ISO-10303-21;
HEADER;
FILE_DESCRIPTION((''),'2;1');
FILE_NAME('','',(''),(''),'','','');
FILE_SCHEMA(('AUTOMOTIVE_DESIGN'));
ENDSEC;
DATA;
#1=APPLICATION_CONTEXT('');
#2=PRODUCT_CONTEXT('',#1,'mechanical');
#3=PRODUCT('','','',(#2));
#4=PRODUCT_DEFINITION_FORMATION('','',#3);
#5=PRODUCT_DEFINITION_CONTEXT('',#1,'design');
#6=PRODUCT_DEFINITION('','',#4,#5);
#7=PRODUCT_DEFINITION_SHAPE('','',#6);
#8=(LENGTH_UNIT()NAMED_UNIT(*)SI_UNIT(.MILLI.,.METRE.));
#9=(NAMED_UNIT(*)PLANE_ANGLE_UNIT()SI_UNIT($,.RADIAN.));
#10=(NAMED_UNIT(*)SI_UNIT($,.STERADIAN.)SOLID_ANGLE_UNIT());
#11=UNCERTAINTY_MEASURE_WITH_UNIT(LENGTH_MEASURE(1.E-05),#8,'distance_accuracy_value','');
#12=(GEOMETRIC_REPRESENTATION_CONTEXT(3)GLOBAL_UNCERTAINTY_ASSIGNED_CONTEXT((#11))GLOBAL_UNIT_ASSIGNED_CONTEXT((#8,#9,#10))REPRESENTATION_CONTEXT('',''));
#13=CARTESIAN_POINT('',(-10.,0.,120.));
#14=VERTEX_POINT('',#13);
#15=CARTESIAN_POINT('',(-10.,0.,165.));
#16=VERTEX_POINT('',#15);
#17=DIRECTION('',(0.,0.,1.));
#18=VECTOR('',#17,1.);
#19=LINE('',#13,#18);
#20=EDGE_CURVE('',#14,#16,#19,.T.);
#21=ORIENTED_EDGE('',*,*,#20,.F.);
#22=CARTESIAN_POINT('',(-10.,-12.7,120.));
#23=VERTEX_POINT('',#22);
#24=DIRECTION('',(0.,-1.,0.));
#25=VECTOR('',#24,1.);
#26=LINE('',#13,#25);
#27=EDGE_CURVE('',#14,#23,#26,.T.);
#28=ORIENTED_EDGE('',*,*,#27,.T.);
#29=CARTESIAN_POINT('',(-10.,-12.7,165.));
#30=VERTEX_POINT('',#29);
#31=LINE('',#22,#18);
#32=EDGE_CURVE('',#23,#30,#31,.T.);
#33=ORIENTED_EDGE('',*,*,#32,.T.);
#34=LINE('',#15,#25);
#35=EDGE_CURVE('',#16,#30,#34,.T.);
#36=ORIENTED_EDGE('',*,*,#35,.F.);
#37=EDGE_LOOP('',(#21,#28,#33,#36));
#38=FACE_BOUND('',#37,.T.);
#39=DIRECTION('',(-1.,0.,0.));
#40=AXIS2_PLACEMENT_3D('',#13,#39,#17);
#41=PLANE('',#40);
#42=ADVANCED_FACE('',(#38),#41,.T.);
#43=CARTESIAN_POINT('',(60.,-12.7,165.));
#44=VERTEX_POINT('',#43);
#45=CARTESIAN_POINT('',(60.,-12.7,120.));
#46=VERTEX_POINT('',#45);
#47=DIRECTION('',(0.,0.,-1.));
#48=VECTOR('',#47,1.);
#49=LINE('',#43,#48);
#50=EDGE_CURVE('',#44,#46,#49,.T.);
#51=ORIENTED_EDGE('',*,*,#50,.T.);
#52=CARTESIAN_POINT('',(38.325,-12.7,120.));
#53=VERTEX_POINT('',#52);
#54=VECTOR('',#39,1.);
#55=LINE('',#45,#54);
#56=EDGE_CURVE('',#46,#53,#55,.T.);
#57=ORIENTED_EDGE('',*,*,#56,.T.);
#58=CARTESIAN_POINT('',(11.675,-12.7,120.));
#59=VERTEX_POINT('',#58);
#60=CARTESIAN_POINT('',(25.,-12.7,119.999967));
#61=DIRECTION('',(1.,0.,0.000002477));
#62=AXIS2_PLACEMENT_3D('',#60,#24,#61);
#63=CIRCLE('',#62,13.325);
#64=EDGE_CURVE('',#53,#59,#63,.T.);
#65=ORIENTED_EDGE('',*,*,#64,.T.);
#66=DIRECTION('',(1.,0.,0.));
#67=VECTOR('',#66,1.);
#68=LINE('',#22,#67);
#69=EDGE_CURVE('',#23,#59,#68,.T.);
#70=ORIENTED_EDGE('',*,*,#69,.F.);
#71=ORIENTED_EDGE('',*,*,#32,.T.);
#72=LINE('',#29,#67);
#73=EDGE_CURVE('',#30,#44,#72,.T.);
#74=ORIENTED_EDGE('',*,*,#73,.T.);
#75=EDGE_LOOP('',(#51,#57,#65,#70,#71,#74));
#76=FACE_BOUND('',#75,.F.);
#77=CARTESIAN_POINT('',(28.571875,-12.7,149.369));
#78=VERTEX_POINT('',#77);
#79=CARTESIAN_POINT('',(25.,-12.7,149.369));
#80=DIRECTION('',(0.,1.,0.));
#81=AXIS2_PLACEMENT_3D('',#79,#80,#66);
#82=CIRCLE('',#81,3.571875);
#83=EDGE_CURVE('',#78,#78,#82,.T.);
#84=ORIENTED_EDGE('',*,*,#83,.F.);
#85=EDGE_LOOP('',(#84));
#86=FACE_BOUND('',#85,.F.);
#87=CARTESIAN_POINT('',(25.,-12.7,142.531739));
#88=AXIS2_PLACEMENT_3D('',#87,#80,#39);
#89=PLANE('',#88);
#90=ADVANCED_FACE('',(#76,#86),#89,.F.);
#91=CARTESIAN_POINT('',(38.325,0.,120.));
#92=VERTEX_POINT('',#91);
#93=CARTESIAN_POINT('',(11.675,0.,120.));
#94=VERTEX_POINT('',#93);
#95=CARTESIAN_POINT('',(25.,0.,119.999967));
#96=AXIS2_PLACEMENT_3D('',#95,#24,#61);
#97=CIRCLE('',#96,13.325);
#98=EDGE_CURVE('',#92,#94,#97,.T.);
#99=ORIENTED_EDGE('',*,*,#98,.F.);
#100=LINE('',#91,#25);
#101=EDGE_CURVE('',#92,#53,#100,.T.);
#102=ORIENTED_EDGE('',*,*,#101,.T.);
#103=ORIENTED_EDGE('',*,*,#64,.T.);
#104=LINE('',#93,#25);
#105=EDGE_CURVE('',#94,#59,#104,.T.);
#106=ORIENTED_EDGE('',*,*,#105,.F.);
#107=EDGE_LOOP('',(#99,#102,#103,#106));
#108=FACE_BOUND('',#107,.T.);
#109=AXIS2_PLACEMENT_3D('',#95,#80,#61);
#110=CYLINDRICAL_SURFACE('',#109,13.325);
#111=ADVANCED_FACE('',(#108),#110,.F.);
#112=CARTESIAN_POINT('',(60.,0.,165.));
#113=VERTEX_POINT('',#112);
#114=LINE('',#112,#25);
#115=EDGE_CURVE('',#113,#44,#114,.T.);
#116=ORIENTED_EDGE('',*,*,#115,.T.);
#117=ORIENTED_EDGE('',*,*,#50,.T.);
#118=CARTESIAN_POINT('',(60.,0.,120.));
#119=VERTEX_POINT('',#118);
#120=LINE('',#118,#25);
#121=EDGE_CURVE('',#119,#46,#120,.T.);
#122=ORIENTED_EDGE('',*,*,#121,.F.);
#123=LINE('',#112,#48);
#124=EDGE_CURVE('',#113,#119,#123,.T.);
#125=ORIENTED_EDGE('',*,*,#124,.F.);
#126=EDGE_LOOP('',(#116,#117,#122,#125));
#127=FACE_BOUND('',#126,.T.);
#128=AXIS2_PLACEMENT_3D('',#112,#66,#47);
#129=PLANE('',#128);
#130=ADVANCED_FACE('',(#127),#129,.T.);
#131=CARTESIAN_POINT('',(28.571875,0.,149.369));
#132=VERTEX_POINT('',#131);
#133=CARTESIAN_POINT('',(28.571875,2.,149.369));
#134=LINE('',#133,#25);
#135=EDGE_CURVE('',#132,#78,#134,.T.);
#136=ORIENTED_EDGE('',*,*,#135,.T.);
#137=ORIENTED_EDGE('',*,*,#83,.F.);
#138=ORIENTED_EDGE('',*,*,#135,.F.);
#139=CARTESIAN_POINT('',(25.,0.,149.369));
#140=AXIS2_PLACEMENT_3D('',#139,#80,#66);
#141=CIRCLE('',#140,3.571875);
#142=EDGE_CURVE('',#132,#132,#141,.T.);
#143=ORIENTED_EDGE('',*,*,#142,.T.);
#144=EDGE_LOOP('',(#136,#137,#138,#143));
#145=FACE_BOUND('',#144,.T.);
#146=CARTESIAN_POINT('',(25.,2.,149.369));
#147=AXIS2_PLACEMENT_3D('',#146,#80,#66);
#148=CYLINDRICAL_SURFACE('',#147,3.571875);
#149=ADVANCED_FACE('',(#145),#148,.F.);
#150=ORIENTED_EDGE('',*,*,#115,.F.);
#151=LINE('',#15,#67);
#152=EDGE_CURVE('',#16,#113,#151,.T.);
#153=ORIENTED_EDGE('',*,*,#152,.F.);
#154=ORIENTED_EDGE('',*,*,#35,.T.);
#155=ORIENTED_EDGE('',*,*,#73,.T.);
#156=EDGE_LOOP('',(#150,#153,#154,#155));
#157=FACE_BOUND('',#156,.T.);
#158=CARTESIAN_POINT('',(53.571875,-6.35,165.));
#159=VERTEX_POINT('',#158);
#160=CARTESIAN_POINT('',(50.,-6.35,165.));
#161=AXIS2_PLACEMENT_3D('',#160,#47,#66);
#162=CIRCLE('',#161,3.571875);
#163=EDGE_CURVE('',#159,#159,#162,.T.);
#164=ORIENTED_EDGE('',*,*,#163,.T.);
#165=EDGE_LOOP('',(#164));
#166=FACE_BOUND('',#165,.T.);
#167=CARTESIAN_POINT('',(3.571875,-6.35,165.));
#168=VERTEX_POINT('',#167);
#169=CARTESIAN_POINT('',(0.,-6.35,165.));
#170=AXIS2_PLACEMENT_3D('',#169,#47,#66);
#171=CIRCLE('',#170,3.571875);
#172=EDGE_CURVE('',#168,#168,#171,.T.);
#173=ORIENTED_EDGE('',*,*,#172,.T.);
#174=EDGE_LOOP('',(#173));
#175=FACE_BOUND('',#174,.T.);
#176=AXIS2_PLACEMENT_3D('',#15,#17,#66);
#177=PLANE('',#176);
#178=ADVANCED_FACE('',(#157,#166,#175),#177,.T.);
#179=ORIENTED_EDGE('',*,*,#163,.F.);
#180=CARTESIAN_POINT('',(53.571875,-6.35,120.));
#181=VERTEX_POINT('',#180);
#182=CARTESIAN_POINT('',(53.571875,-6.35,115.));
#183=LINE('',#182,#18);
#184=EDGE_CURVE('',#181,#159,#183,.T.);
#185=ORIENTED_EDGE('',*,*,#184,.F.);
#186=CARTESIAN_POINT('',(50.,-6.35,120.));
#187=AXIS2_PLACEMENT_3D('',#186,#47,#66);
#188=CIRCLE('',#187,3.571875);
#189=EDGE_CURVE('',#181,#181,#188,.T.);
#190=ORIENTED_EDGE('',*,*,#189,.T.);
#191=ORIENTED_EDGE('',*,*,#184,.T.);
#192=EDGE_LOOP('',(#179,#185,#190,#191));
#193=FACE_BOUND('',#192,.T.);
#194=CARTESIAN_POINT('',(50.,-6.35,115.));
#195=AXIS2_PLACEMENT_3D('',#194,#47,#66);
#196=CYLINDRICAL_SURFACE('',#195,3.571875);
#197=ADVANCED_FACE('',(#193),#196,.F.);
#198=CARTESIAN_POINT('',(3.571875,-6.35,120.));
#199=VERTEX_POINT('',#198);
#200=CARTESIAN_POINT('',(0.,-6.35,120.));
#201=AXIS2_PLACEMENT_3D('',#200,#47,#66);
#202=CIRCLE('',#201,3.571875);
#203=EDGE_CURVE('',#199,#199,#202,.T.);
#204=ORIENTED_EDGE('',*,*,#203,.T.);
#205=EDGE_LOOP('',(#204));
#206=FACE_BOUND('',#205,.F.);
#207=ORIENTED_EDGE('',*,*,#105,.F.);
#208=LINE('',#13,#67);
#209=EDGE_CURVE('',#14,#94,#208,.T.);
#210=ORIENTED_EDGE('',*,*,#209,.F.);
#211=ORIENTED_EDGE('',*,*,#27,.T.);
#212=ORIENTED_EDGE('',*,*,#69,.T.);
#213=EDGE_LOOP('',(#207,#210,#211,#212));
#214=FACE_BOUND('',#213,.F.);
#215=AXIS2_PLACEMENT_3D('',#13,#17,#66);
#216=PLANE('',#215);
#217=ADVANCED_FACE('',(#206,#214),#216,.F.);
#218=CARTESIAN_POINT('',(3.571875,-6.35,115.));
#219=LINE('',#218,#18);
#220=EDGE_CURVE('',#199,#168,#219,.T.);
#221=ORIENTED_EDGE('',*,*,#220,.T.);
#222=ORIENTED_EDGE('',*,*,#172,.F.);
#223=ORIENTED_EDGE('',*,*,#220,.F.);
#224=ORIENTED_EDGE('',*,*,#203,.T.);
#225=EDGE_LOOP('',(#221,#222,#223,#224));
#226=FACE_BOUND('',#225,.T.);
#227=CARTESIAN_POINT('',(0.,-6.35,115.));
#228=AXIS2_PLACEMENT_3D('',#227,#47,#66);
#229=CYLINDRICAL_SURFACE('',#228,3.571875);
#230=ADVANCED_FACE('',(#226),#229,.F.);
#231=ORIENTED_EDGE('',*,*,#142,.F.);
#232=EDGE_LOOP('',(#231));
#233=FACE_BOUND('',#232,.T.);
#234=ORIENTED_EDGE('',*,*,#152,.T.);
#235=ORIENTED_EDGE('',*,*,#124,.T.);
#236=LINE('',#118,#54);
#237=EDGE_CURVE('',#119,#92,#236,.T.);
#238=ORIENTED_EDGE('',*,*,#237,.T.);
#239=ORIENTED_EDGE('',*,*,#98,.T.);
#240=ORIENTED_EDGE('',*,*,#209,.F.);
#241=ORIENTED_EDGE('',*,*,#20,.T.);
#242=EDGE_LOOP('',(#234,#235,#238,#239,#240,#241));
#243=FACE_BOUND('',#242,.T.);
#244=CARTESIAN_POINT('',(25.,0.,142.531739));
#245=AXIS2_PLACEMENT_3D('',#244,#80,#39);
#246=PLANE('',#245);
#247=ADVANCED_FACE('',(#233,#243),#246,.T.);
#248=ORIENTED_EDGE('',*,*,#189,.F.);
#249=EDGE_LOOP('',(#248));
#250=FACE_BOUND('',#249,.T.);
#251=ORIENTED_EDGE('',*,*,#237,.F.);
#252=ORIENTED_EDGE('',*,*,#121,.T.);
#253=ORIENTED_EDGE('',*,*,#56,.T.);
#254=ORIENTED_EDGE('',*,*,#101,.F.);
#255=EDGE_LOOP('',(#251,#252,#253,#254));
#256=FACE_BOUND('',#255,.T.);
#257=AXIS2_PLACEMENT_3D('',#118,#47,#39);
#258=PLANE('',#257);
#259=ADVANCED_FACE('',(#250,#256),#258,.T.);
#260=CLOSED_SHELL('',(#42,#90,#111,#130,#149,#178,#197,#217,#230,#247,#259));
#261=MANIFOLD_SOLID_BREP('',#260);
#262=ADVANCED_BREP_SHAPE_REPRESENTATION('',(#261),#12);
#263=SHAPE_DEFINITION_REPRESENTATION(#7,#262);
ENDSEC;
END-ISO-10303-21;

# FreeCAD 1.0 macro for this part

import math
import FreeCAD as App
import Part
import Sketcher
Q = App.Units.Quantity

doc = App.newDocument("Part")
params = doc.addObject("Spreadsheet::Sheet", "Params")
for row, (alias, value) in enumerate([
    ("pad1_length", "55 mm"),
    ("pad2_length", "55 mm"),
    ("pad3_length", "30 mm"),
    ("sketch4_width", "70 mm"),
    ("sketch4_height", "45 mm"),
    ("pad4_length", "12.7 mm"),
], start=1):
    params.set(f"A{row}", alias)
    params.set(f"B{row}", "=" + value)
    params.setAlias(f"B{row}", alias)

body = doc.addObject("PartDesign::Body", "Body")

# Sketch on XY plane
sketch1 = body.newObject("Sketcher::SketchObject", "Sketch")
sketch1.AttachmentSupport = (doc.getObject("XY_Plane"), [""])
sketch1.MapMode = "FlatFace"
sketch1.addGeometry(Part.Circle(App.Vector(0, 0, 0), App.Vector(0, 0, 1), 3.6), False)
sketch1.addConstraint([
    Sketcher.Constraint("Coincident", 0, 3, -1, 1),
    Sketcher.Constraint("Diameter", 0, Q("7.14375 mm")),
])
pad1 = body.newObject("PartDesign::Pad", "Pad")
pad1.Profile = sketch1
pad1.setExpression("Length", "Params.pad1_length")
body2 = doc.addObject("PartDesign::Body", "Body001")
doc.recompute()

body.Placement = App.Placement(App.Vector(150, -6.35, 115), App.Rotation(App.Vector(0, 0, 1), 0))
boolean = body2.newObject("PartDesign::Boolean", "Boolean")
boolean.Type = "Fuse"
boolean.addObjects([body])
body3 = doc.addObject("PartDesign::Body", "Body002")

# Sketch on XY plane
sketch2 = body3.newObject("Sketcher::SketchObject", "Sketch001")
sketch2.AttachmentSupport = (doc.getObject("XY_Plane002"), [""])
sketch2.MapMode = "FlatFace"
sketch2.addGeometry(Part.Circle(App.Vector(0, 0, 0), App.Vector(0, 0, 1), 3.6), False)
sketch2.addConstraint([
    Sketcher.Constraint("Coincident", 0, 3, -1, 1),
    Sketcher.Constraint("Diameter", 0, Q("7.14375 mm")),
])
pad2 = body3.newObject("PartDesign::Pad", "Pad001")
pad2.Profile = sketch2
pad2.setExpression("Length", "Params.pad2_length")
body4 = doc.addObject("PartDesign::Body", "Body003")
doc.recompute()

body3.Placement = App.Placement(App.Vector(100, -6.35, 115), App.Rotation(App.Vector(0, 0, 1), 0))
boolean2 = body4.newObject("PartDesign::Boolean", "Boolean001")
boolean2.Type = "Fuse"
boolean2.addObjects([body3])
body5 = doc.addObject("PartDesign::Body", "Body004")

# Sketch on XZ plane
sketch3 = body5.newObject("Sketcher::SketchObject", "Sketch002")
sketch3.AttachmentSupport = (doc.getObject("XZ_Plane004"), [""])
sketch3.MapMode = "FlatFace"
sketch3.addGeometry(Part.Circle(App.Vector(0, 0, 0), App.Vector(0, 0, 1), 3.6), False)
sketch3.addConstraint([
    Sketcher.Constraint("Coincident", 0, 3, -1, 1),
    Sketcher.Constraint("Diameter", 0, Q("7.14375 mm")),
])
pad3 = body5.newObject("PartDesign::Pad", "Pad002")
pad3.Profile = sketch3
pad3.setExpression("Length", "Params.pad3_length")
body6 = doc.addObject("PartDesign::Body", "Body005")
doc.recompute()

body5.Placement = App.Placement(App.Vector(25, 2, 149.369), App.Rotation(App.Vector(0, 0, 1), 0))
boolean3 = body6.newObject("PartDesign::Boolean", "Boolean002")
boolean3.Type = "Fuse"
boolean3.addObjects([body5])
body7 = doc.addObject("PartDesign::Body", "Body006")

# Sketch on XZ plane
sketch4 = body7.newObject("Sketcher::SketchObject", "Sketch003")
sketch4.AttachmentSupport = (doc.getObject("XZ_Plane006"), [""])
sketch4.MapMode = "FlatFace"
sketch4.addGeometry([
    Part.LineSegment(App.Vector(-20, 155, 0), App.Vector(-20, 110, 0)),  # 0
    Part.LineSegment(App.Vector(-20, 110, 0), App.Vector(2, 110, 0)),  # 1
    Part.ArcOfCircle(Part.Circle(App.Vector(15, 110, 0), App.Vector(0, 0, 1), 13), math.radians(0), math.radians(180)),  # 2
    Part.LineSegment(App.Vector(28, 110, 0), App.Vector(50, 110, 0)),  # 3
    Part.LineSegment(App.Vector(50, 110, 0), App.Vector(50, 155, 0)),  # 4
    Part.LineSegment(App.Vector(50, 155, 0), App.Vector(-20, 155, 0)),  # 5
], False)
sketch4.addConstraint([
    Sketcher.Constraint("Coincident", 0, 2, 1, 1),
    Sketcher.Constraint("Coincident", 1, 2, 2, 2),
    Sketcher.Constraint("Coincident", 2, 1, 3, 1),
    Sketcher.Constraint("Coincident", 3, 2, 4, 1),
    Sketcher.Constraint("Coincident", 4, 2, 5, 1),
    Sketcher.Constraint("Coincident", 5, 2, 0, 1),
    Sketcher.Constraint("Vertical", 0),
    Sketcher.Constraint("Horizontal", 1),
    Sketcher.Constraint("Horizontal", 3),
    Sketcher.Constraint("Vertical", 4),
    Sketcher.Constraint("Horizontal", 5),
    Sketcher.Constraint("Horizontal", 1, 2, 2, 1),
    Sketcher.Constraint("Equal", 1, 3),
    Sketcher.Constraint("DistanceX", 5, 2, 5, 1, Q("70 mm")),
    Sketcher.Constraint("DistanceY", 0, 2, 0, 1, Q("45 mm")),
    Sketcher.Constraint("DistanceX", -1, 1, 2, 3, Q("15 mm")),
    Sketcher.Constraint("DistanceY", -1, 1, 0, 2, Q("110 mm")),
    Sketcher.Constraint("Radius", 2, Q("13.325 mm")),
    Sketcher.Constraint("DistanceY", -1, 1, 2, 3, Q("109.999967 mm")),
])
sketch4.setExpression("Constraints[13]", "Params.sketch4_width")
sketch4.setExpression("Constraints[14]", "Params.sketch4_height")
pad4 = body7.newObject("PartDesign::Pad", "Pad003")
pad4.Profile = sketch4
pad4.setExpression("Length", "Params.pad4_length")
body8 = doc.addObject("PartDesign::Body", "Body007")
doc.recompute()

body7.Placement = App.Placement(App.Vector(10, 0, 10), App.Rotation(App.Vector(0, 0, 1), 0))
boolean4 = body8.newObject("PartDesign::Boolean", "Boolean003")
boolean4.Type = "Fuse"
boolean4.addObjects([body7])
doc.recompute()

boolean5 = body8.newObject("PartDesign::Boolean", "Boolean004")
boolean5.Type = "Cut"
boolean5.addObjects([body6])
body9 = doc.addObject("PartDesign::Body", "Body008")
doc.recompute()

body8.Placement = App.Placement(App.Vector(100, 0, 0), App.Rotation(App.Vector(0, 0, 1), 0))
boolean6 = body9.newObject("PartDesign::Boolean", "Boolean005")
boolean6.Type = "Fuse"
boolean6.addObjects([body8])
doc.recompute()

boolean7 = body9.newObject("PartDesign::Boolean", "Boolean006")
boolean7.Type = "Cut"
boolean7.addObjects([body4])
doc.recompute()

boolean8 = body9.newObject("PartDesign::Boolean", "Boolean007")
boolean8.Type = "Cut"
boolean8.addObjects([body2])
body10 = doc.addObject("PartDesign::Body", "Body009")
doc.recompute()

body9.Placement = App.Placement(App.Vector(-100, 0, 0), App.Rotation(App.Vector(0, 0, 1), 0))
boolean9 = body10.newObject("PartDesign::Boolean", "Boolean008")
boolean9.Type = "Fuse"
boolean9.addObjects([body9])

doc.recompute()
